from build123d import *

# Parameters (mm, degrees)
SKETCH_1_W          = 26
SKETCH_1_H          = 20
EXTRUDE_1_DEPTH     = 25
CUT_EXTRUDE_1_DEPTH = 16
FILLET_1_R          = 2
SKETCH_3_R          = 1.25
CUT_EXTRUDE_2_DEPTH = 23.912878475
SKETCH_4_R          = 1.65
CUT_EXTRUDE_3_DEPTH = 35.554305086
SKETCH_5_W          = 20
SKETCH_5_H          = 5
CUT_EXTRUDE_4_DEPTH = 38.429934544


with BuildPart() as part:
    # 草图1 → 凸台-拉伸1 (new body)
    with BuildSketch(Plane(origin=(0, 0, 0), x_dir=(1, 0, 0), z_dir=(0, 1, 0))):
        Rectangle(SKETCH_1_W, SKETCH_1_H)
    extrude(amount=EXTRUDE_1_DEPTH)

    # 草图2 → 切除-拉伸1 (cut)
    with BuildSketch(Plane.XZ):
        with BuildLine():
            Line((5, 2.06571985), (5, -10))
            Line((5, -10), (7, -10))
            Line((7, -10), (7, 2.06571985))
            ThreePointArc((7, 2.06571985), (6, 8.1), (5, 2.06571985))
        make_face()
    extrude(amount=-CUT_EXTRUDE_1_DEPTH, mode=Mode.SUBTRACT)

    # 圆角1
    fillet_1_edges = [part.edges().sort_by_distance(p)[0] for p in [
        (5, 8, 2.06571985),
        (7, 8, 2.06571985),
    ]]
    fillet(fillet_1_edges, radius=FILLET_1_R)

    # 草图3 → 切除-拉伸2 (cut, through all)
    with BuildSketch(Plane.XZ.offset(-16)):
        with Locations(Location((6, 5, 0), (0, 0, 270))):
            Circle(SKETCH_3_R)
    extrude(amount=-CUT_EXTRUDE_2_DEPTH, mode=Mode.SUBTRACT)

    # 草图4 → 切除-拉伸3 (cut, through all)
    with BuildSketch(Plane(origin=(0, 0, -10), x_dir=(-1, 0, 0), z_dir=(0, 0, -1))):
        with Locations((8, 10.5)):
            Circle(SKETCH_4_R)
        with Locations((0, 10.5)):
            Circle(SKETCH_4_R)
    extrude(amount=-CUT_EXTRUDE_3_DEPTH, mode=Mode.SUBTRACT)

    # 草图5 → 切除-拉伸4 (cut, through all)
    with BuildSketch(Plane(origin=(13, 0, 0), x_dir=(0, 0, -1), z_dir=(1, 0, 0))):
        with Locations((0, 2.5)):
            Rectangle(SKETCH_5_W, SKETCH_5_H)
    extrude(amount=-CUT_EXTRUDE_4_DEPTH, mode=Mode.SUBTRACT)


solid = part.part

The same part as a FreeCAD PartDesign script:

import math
import FreeCAD as App
import Part
import Sketcher
from FreeCAD import Vector
Q = App.Units.Quantity


def edges_at(feature, points):
    """Names of the edges that pass closest to the given points."""
    edges = feature.Shape.Edges
    near = lambda p: min(range(len(edges)), key=lambda i: edges[i].distToShape(Part.Vertex(*p))[0])
    return sorted({f"Edge{near(p) + 1}" for p in points})


def add_polygon(sketch, points):
    """Adds a closed chain of lines whose ends are joined by coincident constraints."""
    first, n = sketch.GeometryCount, len(points)
    for a, b in zip(points, points[1:] + points[:1]):
        sketch.addGeometry(Part.LineSegment(App.Vector(*a, 0), App.Vector(*b, 0)), False)
    for i in range(n):
        sketch.addConstraint(Sketcher.Constraint("Coincident", first + i, 2, first + (i + 1) % n, 1))

doc = App.newDocument("Part")
params = doc.addObject("Spreadsheet::Sheet", "Params")
for row, (alias, value) in enumerate([
    ("sketch1_width", "26 mm"),
    ("sketch1_height", "20 mm"),
    ("pad1_length", "25 mm"),
    ("sketch2_radius", "3.1 mm"),
    ("sketch2_width", "2 mm"),
    ("pocket1_length", "16 mm"),
    ("fillet_radius", "2 mm"),
    ("sketch3_diameter", "2.5 mm"),
    ("sketch4_diameter", "3.3 mm"),
    ("sketch5_width", "5 mm"),
    ("sketch5_height", "20 mm"),
], start=1):
    params.set(f"A{row}", alias)
    params.set(f"B{row}", "=" + value)
    params.setAlias(f"B{row}", alias)

body = doc.addObject("PartDesign::Body", "Body")

# Sketch on XZ plane
sketch1 = body.newObject("Sketcher::SketchObject", "Sketch")
sketch1.AttachmentSupport = (doc.getObject("XZ_Plane"), [""])
sketch1.MapMode = "FlatFace"
add_polygon(sketch1, [(-13, -10), (-13, 10), (13, 10), (13, -10)])  # lines 0-3
sketch1.addConstraint(Sketcher.Constraint("Vertical", 0))
sketch1.addConstraint(Sketcher.Constraint("Horizontal", 1))
sketch1.addConstraint(Sketcher.Constraint("Vertical", 2))
sketch1.addConstraint(Sketcher.Constraint("Horizontal", 3))
sketch1.addConstraint(Sketcher.Constraint("Symmetric", 0, 2, 2, 2, -1, 1))
sketch1.addConstraint(Sketcher.Constraint("DistanceX", 1, 1, 1, 2, Q("26 mm")))
sketch1.addConstraint(Sketcher.Constraint("DistanceY", 0, 1, 0, 2, Q("20 mm")))
sketch1.setExpression("Constraints[9]", "Params.sketch1_width")
sketch1.setExpression("Constraints[10]", "Params.sketch1_height")
pad1 = body.newObject("PartDesign::Pad", "Pad")
pad1.Profile = sketch1
pad1.setExpression("Length", "Params.pad1_length")
pad1.Reversed = True

# Sketch on XZ plane
sketch2 = body.newObject("Sketcher::SketchObject", "Sketch001")
sketch2.AttachmentSupport = (doc.getObject("XZ_Plane"), [""])
sketch2.MapMode = "FlatFace"
sketch2.addGeometry(Part.LineSegment(Vector(5, 2.1, 0), Vector(5, -10, 0)), False)
sketch2.addGeometry(Part.LineSegment(Vector(5, -10, 0), Vector(7, -10, 0)), False)
sketch2.addGeometry(Part.LineSegment(Vector(7, -10, 0), Vector(7, 2.1, 0)), False)
sketch2.addGeometry(Part.ArcOfCircle(Part.Circle(Vector(6, 5, 0), Vector(0, 0, 1), 3.1), math.radians(-71), math.radians(251)), False)
sketch2.addConstraint(Sketcher.Constraint("Coincident", 0, 2, 1, 1))
sketch2.addConstraint(Sketcher.Constraint("Coincident", 1, 2, 2, 1))
sketch2.addConstraint(Sketcher.Constraint("Coincident", 2, 2, 3, 1))
sketch2.addConstraint(Sketcher.Constraint("Coincident", 3, 2, 0, 1))
sketch2.addConstraint(Sketcher.Constraint("Vertical", 0))
sketch2.addConstraint(Sketcher.Constraint("Horizontal", 1))
sketch2.addConstraint(Sketcher.Constraint("Vertical", 2))
sketch2.addConstraint(Sketcher.Constraint("Horizontal", 2, 2, 3, 2))
sketch2.addConstraint(Sketcher.Constraint("Radius", 3, Q("3.1 mm")))
sketch2.addConstraint(Sketcher.Constraint("DistanceX", 1, 1, 1, 2, Q("2 mm")))
sketch2.addConstraint(Sketcher.Constraint("DistanceX", -1, 1, 3, 3, Q("6 mm")))
sketch2.addConstraint(Sketcher.Constraint("DistanceY", -1, 1, 3, 3, Q("5 mm")))
sketch2.addConstraint(Sketcher.Constraint("DistanceY", 0, 2, -1, 1, Q("10 mm")))
sketch2.setExpression("Constraints[8]", "Params.sketch2_radius")
sketch2.setExpression("Constraints[9]", "Params.sketch2_width")
pocket1 = body.newObject("PartDesign::Pocket", "Pocket")
pocket1.Profile = sketch2
pocket1.setExpression("Length", "Params.pocket1_length")
doc.recompute()

fillet = body.newObject("PartDesign::Fillet", "Fillet")
fillet.Base = (pocket1, edges_at(pocket1, [(5, 8, 2.066), (7, 8, 2.066)]))
fillet.setExpression("Radius", "Params.fillet_radius")

# Sketch on XZ plane
sketch3 = body.newObject("Sketcher::SketchObject", "Sketch002")
sketch3.AttachmentSupport = (doc.getObject("XZ_Plane"), [""])
sketch3.MapMode = "FlatFace"
sketch3.AttachmentOffset = App.Placement(Vector(0, 0, -16), App.Rotation())
sketch3.addGeometry(Part.Circle(Vector(6, 5, 0), Vector(0, 0, 1), 1.2), False)
sketch3.addConstraint(Sketcher.Constraint("Diameter", 0, Q("2.5 mm")))
sketch3.addConstraint(Sketcher.Constraint("DistanceX", -1, 1, 0, 3, Q("6 mm")))
sketch3.addConstraint(Sketcher.Constraint("DistanceY", -1, 1, 0, 3, Q("5 mm")))
sketch3.setExpression("Constraints[0]", "Params.sketch3_diameter")
pocket2 = body.newObject("PartDesign::Pocket", "Pocket001")
pocket2.Profile = sketch3
pocket2.Type = "ThroughAll"

# Sketch on XY plane
sketch4 = body.newObject("Sketcher::SketchObject", "Sketch003")
sketch4.AttachmentSupport = (doc.getObject("XY_Plane"), [""])
sketch4.MapMode = "FlatFace"
sketch4.AttachmentOffset = App.Placement(Vector(0, 0, -10), App.Rotation())
sketch4.addGeometry(Part.Circle(Vector(-8, 10.5, 0), Vector(0, 0, 1), 1.6), False)
sketch4.addGeometry(Part.Circle(Vector(0, 10.5, 0), Vector(0, 0, 1), 1.6), False)
sketch4.addConstraint(Sketcher.Constraint("Equal", 0, 1))
sketch4.addConstraint(Sketcher.Constraint("PointOnObject", 1, 3, -2))
sketch4.addConstraint(Sketcher.Constraint("Horizontal", 0, 3, 1, 3))
sketch4.addConstraint(Sketcher.Constraint("Diameter", 0, Q("3.3 mm")))
sketch4.addConstraint(Sketcher.Constraint("DistanceX", 0, 3, -1, 1, Q("8 mm")))
sketch4.addConstraint(Sketcher.Constraint("DistanceY", -1, 1, 0, 3, Q("10.5 mm")))
sketch4.setExpression("Constraints[3]", "Params.sketch4_diameter")
pocket3 = body.newObject("PartDesign::Pocket", "Pocket002")
pocket3.Profile = sketch4
pocket3.Type = "ThroughAll"
pocket3.Reversed = True

# Sketch on YZ plane
sketch5 = body.newObject("Sketcher::SketchObject", "Sketch004")
sketch5.AttachmentSupport = (doc.getObject("YZ_Plane"), [""])
sketch5.MapMode = "FlatFace"
sketch5.AttachmentOffset = App.Placement(Vector(0, 0, 13), App.Rotation())
add_polygon(sketch5, [(5, 10), (0, 10), (0, -10), (5, -10)])  # lines 0-3
sketch5.addConstraint(Sketcher.Constraint("Horizontal", 0))
sketch5.addConstraint(Sketcher.Constraint("Vertical", 1))
sketch5.addConstraint(Sketcher.Constraint("Horizontal", 2))
sketch5.addConstraint(Sketcher.Constraint("Vertical", 3))
sketch5.addConstraint(Sketcher.Constraint("Symmetric", 0, 2, 1, 2, -1, 1))
sketch5.addConstraint(Sketcher.Constraint("DistanceX", 0, 2, 0, 1, Q("5 mm")))
sketch5.addConstraint(Sketcher.Constraint("DistanceY", 1, 2, 1, 1, Q("20 mm")))
sketch5.setExpression("Constraints[9]", "Params.sketch5_width")
sketch5.setExpression("Constraints[10]", "Params.sketch5_height")
pocket4 = body.newObject("PartDesign::Pocket", "Pocket003")
pocket4.Profile = sketch5
pocket4.Type = "ThroughAll"

doc.recompute()
